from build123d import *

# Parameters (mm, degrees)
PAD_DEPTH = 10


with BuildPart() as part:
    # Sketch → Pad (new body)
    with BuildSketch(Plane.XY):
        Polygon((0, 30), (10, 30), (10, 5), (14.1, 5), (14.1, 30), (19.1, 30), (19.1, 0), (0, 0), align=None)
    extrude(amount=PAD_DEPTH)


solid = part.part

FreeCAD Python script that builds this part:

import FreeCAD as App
import Part
import Sketcher
Q = App.Units.Quantity


def add_polygon(sketch, points):
    """Adds a closed chain of lines whose ends are joined by coincident constraints."""
    first, n = sketch.GeometryCount, len(points)
    for a, b in zip(points, points[1:] + points[:1]):
        sketch.addGeometry(Part.LineSegment(App.Vector(*a, 0), App.Vector(*b, 0)), False)
    for i in range(n):
        sketch.addConstraint(Sketcher.Constraint("Coincident", first + i, 2, first + (i + 1) % n, 1))

doc = App.newDocument("Part")
body = doc.addObject("PartDesign::Body", "Body")

# Sketch on XY plane
sketch1 = body.newObject("Sketcher::SketchObject", "Sketch")
sketch1.AttachmentSupport = (doc.getObject("XY_Plane"), [""])
sketch1.MapMode = "FlatFace"
add_polygon(sketch1, [(10, 30), (0, 30), (0, 0), (19.1, 0), (19.1, 30), (14.1, 30), (14.1, 5), (10, 5)])  # lines 0-7
sketch1.addConstraint(Sketcher.Constraint("Horizontal", 0))
sketch1.addConstraint(Sketcher.Constraint("Vertical", 1))
sketch1.addConstraint(Sketcher.Constraint("Horizontal", 2))
sketch1.addConstraint(Sketcher.Constraint("Vertical", 3))
sketch1.addConstraint(Sketcher.Constraint("Horizontal", 4))
sketch1.addConstraint(Sketcher.Constraint("Vertical", 5))
sketch1.addConstraint(Sketcher.Constraint("Horizontal", 6))
sketch1.addConstraint(Sketcher.Constraint("Vertical", 7))
sketch1.addConstraint(Sketcher.Constraint("Coincident", 1, 2, -1, 1))
sketch1.addConstraint(Sketcher.Constraint("Horizontal", 0, 2, 3, 2))
sketch1.addConstraint(Sketcher.Constraint("DistanceX", 0, 2, 0, 1, Q("10 mm")))
sketch1.addConstraint(Sketcher.Constraint("DistanceX", 4, 2, 4, 1, Q("5 mm")))
sketch1.addConstraint(Sketcher.Constraint("DistanceY", 1, 2, 1, 1, Q("30 mm")))
sketch1.addConstraint(Sketcher.Constraint("DistanceY", 5, 2, 5, 1, Q("25 mm")))
sketch1.addConstraint(Sketcher.Constraint("DistanceX", 2, 1, 2, 2, Q("19.1 mm")))
pad1 = body.newObject("PartDesign::Pad", "Pad")
pad1.Profile = sketch1
pad1.Length = 10

doc.recompute()
